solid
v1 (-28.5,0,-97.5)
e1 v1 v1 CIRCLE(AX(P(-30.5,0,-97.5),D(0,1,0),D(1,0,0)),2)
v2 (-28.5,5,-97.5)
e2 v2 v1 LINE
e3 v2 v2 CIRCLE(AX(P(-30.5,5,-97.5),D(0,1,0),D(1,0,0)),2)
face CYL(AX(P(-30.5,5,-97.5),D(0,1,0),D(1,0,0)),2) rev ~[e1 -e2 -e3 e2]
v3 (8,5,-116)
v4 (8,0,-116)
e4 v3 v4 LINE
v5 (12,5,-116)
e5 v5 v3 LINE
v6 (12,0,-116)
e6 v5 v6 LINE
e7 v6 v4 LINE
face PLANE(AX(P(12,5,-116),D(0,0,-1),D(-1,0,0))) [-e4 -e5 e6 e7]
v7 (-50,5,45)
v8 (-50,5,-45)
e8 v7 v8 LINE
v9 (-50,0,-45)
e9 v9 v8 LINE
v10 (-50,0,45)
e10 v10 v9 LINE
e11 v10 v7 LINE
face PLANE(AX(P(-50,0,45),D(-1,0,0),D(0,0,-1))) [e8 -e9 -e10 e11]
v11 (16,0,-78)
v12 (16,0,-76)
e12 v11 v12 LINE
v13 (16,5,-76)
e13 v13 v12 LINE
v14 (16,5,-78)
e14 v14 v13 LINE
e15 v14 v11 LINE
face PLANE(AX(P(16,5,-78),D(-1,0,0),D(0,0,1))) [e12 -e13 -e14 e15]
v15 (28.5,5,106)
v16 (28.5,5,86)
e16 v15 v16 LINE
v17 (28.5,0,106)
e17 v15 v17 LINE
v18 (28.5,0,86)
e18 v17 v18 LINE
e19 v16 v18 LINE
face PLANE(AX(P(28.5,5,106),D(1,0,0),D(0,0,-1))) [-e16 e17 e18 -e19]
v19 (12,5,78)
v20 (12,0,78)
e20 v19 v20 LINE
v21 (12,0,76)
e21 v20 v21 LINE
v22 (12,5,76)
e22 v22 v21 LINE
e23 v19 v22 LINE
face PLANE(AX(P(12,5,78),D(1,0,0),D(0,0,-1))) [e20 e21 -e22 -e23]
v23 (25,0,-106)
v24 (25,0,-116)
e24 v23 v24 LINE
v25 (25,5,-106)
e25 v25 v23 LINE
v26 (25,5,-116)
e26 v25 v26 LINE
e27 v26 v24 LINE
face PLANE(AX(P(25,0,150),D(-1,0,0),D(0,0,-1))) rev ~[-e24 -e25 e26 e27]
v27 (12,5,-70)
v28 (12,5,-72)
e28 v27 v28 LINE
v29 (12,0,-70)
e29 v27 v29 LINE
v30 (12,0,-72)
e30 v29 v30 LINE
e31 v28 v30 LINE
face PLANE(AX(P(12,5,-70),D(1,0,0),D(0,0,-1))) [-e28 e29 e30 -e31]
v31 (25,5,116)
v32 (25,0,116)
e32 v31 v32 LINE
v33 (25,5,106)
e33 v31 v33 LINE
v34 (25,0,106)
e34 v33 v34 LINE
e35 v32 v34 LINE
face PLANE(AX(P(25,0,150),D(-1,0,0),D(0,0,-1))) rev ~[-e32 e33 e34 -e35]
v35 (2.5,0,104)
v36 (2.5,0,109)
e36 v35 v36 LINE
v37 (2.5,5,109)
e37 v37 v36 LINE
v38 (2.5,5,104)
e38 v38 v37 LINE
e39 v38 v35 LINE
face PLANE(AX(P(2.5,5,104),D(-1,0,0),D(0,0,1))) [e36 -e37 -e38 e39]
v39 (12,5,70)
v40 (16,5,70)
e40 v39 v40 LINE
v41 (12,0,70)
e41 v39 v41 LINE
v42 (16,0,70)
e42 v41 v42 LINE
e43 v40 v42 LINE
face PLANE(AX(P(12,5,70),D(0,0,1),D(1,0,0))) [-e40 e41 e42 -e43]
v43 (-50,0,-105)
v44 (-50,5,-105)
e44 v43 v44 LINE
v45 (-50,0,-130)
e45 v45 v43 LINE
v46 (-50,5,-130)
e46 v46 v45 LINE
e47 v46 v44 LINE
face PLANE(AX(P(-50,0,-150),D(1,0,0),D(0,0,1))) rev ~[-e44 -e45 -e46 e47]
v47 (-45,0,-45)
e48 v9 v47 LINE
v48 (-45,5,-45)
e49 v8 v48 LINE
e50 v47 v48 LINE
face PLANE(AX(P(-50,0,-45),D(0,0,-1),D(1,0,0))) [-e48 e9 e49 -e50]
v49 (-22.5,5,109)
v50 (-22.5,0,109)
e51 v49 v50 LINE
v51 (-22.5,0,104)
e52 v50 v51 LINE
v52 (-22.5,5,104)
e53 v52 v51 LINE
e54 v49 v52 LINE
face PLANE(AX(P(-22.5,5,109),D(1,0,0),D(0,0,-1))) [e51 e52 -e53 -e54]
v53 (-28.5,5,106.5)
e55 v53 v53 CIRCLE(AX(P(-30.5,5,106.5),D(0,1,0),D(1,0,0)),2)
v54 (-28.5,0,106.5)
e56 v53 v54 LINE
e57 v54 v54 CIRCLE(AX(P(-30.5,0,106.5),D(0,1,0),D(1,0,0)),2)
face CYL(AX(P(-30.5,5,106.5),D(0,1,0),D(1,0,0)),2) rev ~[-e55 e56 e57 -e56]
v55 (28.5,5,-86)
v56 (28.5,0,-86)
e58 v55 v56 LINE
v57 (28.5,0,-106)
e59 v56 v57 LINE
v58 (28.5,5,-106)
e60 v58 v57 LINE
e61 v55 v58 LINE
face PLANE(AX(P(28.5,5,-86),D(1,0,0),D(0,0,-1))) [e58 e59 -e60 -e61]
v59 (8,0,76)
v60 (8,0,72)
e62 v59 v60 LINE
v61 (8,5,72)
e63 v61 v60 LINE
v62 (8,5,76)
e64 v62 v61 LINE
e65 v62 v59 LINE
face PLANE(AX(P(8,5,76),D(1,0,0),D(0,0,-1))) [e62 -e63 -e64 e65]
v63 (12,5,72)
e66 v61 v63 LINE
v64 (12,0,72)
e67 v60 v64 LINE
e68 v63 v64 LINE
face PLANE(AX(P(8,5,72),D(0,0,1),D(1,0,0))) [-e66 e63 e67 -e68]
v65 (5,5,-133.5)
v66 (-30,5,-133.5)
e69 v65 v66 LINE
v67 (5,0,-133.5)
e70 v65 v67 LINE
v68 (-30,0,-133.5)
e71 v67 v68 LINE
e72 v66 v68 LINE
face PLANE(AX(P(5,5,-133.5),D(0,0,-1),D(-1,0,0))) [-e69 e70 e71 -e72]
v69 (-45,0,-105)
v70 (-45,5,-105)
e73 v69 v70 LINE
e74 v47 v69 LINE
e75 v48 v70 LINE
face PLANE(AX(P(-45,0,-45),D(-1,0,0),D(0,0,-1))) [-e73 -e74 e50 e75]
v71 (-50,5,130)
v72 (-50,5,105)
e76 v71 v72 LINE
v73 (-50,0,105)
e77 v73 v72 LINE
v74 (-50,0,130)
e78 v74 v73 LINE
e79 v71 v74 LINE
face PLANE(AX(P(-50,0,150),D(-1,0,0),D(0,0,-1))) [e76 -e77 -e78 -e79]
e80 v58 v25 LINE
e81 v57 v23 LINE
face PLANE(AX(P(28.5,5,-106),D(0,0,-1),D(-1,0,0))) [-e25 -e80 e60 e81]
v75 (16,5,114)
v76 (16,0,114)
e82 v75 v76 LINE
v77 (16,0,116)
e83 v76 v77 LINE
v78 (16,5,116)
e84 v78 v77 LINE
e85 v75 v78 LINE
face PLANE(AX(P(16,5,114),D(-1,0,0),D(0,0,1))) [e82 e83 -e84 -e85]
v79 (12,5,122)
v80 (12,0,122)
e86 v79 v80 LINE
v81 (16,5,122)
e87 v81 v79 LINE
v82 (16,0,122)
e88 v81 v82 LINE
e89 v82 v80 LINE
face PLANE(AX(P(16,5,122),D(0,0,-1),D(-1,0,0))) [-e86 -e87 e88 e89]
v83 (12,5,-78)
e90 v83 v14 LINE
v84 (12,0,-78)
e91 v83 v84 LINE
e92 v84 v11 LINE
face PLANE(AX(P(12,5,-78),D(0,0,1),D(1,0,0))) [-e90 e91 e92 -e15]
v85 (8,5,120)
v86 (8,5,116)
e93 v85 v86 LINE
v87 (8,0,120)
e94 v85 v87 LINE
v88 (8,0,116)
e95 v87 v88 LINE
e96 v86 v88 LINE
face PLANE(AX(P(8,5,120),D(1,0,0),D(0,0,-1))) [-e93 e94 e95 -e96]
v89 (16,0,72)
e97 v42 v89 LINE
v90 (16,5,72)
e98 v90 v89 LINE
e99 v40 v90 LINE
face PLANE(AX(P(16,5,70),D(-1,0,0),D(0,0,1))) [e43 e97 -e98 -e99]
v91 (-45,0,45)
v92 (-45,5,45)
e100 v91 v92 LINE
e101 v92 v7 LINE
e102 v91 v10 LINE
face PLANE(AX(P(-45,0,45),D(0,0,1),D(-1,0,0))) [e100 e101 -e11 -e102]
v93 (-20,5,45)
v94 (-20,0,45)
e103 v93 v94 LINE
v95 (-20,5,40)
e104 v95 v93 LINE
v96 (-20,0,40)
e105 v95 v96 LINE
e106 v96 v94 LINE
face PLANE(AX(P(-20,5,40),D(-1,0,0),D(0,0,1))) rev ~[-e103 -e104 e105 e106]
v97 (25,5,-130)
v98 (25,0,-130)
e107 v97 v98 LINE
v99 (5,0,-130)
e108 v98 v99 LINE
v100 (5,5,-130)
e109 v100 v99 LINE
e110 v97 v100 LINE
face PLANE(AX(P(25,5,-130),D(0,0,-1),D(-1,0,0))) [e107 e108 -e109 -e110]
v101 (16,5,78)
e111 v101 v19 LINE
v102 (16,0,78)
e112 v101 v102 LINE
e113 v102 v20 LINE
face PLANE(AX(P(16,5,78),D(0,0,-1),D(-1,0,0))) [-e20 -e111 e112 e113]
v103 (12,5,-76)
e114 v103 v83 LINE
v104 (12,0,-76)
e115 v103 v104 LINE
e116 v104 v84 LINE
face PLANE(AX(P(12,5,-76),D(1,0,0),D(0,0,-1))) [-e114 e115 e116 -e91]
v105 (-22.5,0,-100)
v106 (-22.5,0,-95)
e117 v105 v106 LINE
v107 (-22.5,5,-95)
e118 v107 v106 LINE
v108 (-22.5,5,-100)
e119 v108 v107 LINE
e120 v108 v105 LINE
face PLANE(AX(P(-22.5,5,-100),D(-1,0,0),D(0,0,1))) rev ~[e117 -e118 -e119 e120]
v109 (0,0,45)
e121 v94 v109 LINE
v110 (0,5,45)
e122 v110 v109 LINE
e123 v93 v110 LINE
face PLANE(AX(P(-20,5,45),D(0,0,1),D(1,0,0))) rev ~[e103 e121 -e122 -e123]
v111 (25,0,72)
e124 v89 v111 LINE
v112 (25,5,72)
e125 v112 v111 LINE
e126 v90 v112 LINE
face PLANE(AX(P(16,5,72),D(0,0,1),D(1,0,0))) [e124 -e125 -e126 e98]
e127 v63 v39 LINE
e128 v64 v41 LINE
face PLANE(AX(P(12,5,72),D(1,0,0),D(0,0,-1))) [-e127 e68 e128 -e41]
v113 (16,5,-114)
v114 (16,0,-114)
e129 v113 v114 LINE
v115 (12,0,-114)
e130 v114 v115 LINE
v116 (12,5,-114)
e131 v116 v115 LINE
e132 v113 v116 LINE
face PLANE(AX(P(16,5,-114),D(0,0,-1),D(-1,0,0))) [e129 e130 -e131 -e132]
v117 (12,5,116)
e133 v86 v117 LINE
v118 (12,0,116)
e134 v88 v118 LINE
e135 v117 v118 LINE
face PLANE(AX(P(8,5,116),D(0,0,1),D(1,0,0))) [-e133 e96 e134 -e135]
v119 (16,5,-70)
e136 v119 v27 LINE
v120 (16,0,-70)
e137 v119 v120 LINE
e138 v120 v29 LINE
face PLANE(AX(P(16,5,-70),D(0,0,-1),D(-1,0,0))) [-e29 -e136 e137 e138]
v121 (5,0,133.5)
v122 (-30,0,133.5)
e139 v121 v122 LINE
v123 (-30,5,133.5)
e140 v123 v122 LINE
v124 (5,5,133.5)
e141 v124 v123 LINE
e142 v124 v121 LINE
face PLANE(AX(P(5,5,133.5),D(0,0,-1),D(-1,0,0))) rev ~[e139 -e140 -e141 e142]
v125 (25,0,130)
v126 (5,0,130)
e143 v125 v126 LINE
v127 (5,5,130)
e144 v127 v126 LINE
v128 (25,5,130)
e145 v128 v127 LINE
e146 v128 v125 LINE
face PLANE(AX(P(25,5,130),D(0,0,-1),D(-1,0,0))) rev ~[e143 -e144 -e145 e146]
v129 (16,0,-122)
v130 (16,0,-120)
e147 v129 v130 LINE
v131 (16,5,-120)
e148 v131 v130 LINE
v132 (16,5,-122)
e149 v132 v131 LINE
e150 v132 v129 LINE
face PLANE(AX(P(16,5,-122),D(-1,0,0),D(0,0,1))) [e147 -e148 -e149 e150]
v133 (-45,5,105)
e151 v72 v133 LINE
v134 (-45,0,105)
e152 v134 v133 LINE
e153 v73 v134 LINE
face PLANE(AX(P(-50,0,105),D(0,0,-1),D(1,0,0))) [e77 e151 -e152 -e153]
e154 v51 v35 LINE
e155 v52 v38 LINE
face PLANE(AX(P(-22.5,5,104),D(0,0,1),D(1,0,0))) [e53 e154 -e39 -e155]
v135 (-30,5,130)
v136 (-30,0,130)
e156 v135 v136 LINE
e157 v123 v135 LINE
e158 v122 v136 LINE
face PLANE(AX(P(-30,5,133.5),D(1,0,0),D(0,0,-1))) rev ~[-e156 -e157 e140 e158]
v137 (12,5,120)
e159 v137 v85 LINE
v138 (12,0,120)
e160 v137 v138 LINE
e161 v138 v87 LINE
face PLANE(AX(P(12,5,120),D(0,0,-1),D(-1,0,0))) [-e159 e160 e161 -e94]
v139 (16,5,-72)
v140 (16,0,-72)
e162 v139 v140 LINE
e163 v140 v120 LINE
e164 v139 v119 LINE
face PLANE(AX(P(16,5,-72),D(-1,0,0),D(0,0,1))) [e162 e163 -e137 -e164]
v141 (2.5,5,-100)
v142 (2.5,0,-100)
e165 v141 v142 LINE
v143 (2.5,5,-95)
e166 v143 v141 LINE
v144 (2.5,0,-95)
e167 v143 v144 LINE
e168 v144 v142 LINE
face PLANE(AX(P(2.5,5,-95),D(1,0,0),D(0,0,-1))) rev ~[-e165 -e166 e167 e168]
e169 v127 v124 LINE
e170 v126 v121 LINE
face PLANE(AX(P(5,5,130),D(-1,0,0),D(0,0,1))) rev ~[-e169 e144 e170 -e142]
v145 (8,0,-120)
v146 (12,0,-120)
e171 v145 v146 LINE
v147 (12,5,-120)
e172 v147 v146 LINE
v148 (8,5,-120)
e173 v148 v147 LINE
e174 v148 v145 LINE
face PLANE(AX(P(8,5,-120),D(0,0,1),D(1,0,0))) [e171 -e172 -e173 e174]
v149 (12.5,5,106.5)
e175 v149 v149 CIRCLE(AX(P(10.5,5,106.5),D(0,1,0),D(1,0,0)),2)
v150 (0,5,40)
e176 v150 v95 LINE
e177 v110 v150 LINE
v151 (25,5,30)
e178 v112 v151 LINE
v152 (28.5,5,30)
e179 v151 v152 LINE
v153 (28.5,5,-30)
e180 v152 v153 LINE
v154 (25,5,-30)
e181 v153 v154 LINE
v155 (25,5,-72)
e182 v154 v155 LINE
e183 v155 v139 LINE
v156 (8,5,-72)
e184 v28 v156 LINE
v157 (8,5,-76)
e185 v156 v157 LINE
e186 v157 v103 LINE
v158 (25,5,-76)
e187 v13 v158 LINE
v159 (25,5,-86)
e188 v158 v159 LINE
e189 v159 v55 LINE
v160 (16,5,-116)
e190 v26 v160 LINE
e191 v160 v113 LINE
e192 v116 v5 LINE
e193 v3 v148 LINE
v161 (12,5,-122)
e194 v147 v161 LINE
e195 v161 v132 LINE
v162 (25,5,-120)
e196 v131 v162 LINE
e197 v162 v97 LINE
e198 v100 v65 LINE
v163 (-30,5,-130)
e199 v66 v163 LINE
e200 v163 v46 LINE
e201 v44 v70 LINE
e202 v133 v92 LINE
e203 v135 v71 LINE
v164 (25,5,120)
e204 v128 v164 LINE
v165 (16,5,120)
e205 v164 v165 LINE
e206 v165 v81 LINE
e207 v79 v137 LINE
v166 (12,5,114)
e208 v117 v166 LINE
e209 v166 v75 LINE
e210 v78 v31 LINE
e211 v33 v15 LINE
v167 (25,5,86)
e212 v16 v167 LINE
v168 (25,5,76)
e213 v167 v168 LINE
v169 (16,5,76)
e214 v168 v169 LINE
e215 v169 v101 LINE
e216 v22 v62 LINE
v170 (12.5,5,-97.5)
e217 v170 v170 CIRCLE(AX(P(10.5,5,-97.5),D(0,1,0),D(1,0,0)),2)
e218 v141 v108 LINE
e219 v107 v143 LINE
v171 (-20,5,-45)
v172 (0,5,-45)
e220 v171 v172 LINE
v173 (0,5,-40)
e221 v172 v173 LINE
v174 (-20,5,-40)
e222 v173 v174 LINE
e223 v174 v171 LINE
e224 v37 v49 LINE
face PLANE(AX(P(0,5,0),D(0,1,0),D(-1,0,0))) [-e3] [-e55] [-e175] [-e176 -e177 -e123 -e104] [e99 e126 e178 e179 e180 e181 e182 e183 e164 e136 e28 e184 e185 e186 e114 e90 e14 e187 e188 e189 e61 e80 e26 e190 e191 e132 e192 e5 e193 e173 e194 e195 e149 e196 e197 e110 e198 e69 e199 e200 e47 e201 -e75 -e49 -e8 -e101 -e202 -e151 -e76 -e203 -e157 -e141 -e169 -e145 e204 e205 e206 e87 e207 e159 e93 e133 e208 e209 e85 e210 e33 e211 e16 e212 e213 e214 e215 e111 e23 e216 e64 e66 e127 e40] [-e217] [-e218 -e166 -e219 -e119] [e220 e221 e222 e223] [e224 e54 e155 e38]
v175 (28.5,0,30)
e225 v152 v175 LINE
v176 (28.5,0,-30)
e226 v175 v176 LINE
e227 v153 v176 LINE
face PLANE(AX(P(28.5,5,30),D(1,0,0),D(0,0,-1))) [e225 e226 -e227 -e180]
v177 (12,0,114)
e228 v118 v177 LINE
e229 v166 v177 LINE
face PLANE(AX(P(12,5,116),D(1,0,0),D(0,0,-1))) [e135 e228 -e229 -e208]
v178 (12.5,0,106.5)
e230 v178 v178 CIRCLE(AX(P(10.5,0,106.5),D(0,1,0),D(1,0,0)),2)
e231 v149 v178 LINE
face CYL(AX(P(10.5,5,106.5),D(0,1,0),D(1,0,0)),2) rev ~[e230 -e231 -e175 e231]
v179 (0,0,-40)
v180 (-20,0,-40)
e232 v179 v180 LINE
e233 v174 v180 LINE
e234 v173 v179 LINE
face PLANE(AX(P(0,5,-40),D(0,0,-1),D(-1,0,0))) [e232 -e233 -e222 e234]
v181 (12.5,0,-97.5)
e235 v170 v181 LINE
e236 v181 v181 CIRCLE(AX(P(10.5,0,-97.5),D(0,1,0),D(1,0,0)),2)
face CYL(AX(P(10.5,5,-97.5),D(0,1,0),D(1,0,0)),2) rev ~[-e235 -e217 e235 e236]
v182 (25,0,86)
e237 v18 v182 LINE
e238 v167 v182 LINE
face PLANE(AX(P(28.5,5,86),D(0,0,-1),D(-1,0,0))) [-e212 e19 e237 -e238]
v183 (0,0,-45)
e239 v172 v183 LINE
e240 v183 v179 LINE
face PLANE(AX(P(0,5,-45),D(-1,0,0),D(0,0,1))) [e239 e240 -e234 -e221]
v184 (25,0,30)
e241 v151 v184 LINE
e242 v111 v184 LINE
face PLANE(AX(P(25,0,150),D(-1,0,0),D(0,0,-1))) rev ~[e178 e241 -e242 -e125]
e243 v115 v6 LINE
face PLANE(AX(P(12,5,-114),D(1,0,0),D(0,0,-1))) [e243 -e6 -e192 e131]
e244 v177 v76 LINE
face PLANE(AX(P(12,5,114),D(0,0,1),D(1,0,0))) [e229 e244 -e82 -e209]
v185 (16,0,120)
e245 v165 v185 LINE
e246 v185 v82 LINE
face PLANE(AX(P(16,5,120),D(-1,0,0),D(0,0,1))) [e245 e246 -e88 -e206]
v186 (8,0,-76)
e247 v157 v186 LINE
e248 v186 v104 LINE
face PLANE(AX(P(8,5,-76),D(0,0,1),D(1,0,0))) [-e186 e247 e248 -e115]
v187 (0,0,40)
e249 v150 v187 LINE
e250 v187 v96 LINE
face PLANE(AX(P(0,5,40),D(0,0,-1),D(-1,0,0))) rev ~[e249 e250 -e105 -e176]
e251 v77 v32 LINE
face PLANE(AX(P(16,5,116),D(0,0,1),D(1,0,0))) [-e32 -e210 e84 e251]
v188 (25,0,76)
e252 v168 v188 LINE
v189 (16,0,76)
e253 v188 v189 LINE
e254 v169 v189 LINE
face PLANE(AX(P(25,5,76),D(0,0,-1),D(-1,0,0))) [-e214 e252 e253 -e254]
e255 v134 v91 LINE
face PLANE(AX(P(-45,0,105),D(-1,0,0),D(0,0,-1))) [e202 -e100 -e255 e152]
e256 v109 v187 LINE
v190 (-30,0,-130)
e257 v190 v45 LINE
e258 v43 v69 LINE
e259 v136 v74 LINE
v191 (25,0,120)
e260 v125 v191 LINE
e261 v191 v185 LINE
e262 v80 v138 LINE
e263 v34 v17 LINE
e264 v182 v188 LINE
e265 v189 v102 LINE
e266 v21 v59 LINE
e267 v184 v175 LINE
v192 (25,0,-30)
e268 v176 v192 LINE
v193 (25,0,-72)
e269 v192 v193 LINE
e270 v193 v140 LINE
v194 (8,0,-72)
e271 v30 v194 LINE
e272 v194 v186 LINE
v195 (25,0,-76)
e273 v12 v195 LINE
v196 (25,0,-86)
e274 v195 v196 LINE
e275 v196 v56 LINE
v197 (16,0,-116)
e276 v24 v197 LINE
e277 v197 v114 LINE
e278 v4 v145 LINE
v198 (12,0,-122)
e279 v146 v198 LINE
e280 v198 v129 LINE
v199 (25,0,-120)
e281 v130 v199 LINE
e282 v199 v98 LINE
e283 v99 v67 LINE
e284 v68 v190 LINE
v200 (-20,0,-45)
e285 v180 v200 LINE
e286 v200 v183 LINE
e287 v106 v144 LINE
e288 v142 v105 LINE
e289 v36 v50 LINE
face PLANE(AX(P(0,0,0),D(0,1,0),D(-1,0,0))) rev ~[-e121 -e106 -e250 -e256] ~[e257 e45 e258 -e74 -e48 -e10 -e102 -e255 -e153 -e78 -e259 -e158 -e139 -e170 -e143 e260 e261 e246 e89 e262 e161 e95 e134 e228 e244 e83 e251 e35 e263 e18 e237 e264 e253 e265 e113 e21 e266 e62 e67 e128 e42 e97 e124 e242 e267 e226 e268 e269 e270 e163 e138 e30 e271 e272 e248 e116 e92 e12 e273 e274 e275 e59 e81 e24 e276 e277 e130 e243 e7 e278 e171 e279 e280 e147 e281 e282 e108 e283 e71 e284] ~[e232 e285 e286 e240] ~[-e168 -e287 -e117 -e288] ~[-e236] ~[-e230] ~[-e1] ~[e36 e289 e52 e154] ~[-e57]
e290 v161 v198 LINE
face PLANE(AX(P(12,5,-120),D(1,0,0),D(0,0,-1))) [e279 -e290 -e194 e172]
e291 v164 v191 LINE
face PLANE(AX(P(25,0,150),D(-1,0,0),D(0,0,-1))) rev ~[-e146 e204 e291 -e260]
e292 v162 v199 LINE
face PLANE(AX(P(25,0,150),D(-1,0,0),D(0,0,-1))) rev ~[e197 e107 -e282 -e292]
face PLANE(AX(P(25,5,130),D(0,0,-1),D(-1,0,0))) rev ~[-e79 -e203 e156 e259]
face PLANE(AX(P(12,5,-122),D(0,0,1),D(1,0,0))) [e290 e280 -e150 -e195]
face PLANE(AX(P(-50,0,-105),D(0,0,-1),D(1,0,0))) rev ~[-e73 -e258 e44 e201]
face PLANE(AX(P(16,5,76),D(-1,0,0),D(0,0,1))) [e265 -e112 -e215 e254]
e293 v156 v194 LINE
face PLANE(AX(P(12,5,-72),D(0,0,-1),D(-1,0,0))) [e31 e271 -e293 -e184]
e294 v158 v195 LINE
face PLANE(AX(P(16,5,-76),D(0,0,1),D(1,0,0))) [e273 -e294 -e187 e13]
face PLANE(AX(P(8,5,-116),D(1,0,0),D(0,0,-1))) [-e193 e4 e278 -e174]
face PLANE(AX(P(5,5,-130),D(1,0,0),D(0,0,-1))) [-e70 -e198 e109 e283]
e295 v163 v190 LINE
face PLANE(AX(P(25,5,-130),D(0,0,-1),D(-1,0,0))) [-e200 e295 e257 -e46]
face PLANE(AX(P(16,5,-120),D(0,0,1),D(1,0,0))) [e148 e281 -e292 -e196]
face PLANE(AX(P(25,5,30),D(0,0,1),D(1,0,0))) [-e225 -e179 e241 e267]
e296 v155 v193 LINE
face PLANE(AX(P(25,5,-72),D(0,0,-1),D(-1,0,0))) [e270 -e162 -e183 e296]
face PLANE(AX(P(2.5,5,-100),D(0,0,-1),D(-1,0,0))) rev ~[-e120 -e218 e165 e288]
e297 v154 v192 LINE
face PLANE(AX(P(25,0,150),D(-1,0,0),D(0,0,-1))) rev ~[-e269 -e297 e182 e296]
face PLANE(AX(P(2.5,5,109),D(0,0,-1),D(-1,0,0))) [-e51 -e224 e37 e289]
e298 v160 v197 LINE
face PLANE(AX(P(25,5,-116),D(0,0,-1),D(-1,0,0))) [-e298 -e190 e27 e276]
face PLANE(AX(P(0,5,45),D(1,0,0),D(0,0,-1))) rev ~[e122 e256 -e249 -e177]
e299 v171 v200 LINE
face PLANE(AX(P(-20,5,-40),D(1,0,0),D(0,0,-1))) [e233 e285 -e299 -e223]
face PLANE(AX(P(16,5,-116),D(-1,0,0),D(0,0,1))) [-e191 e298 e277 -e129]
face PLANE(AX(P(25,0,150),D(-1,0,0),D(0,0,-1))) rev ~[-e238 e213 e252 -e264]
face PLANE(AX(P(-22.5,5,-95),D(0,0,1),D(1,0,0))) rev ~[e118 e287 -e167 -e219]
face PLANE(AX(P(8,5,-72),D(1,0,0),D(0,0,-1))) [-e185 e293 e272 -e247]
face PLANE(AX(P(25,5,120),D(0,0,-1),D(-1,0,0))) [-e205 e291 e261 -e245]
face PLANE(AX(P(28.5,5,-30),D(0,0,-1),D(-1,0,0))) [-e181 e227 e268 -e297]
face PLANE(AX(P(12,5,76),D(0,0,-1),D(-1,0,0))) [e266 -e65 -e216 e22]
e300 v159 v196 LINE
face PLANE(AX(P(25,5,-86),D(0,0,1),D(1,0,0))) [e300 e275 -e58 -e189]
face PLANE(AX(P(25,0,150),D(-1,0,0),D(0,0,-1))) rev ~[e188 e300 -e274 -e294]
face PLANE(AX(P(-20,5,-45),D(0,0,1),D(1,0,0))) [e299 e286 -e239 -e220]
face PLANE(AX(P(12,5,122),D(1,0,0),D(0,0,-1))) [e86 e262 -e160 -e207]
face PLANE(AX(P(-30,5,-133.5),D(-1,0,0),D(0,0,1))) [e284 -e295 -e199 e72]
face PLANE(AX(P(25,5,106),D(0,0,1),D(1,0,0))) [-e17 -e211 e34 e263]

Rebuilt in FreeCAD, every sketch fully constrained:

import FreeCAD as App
import Part
import Sketcher
Q = App.Units.Quantity


def add_polygon(sketch, points):
    """Adds a closed chain of lines whose ends are joined by coincident constraints."""
    first, n = sketch.GeometryCount, len(points)
    for a, b in zip(points, points[1:] + points[:1]):
        sketch.addGeometry(Part.LineSegment(App.Vector(*a, 0), App.Vector(*b, 0)), False)
    for i in range(n):
        sketch.addConstraint(Sketcher.Constraint("Coincident", first + i, 2, first + (i + 1) % n, 1))

doc = App.newDocument("Part")
body = doc.addObject("PartDesign::Body", "Body")

sketch1 = body.newObject("Sketcher::SketchObject", "Sketch")
sketch1.AttachmentSupport = (doc.getObject("XZ_Plane"), [""])
sketch1.MapMode = "FlatFace"
add_polygon(sketch1, [(25, 150), (25, -150), (-50, -150), (-50, -105), (-45, -105), (-45, -45), (-50, -45), (-50, 45), (-45, 45), (-45, 105), (-50, 105), (-50, 150)])
sketch1.addConstraint([
    Sketcher.Constraint("Vertical", 0),
    Sketcher.Constraint("Horizontal", 1),
    Sketcher.Constraint("Vertical", 2),
    Sketcher.Constraint("Horizontal", 3),
    Sketcher.Constraint("Vertical", 4),
    Sketcher.Constraint("Horizontal", 5),
    Sketcher.Constraint("Vertical", 6),
    Sketcher.Constraint("Horizontal", 7),
    Sketcher.Constraint("Vertical", 8),
    Sketcher.Constraint("Horizontal", 9),
    Sketcher.Constraint("Vertical", 10),
    Sketcher.Constraint("Horizontal", 11),
    Sketcher.Constraint("Symmetric", 4, 2, 7, 2, -1),
    Sketcher.Constraint("Symmetric", 2, 2, 9, 2, -1),
    Sketcher.Constraint("Vertical", 2, 2, 5, 2),
    Sketcher.Constraint("Equal", 2, 10),
    Sketcher.Constraint("DistanceX", 1, 2, 1, 1, Q("75 mm")),
    Sketcher.Constraint("DistanceX", 3, 1, 3, 2, Q("5 mm")),
    Sketcher.Constraint("DistanceY", 0, 2, 0, 1, Q("300 mm")),
    Sketcher.Constraint("DistanceY", 2, 1, 2, 2, Q("45 mm")),
    Sketcher.Constraint("DistanceY", 4, 1, 4, 2, Q("60 mm")),
    Sketcher.Constraint("DistanceX", 3, 2, -1, 1, Q("45 mm")),
])
pad1 = body.newObject("PartDesign::Pad", "Pad")
pad1.Profile = sketch1
pad1.Length = 5
pad1.Reversed = True

sketch2 = body.newObject("Sketcher::SketchObject", "Sketch001")
sketch2.AttachmentSupport = (doc.getObject("XZ_Plane"), [""])
sketch2.MapMode = "FlatFace"
sketch2.AttachmentOffset = App.Placement(App.Vector(0, 0, -5), App.Rotation())
add_polygon(sketch2, [(-50, 130), (-50, 150), (25, 150), (25, 130)])
add_polygon(sketch2, [(-50, -130), (25, -130), (25, -150), (-50, -150)])
sketch2.addConstraint([
    Sketcher.Constraint("Vertical", 0),
    Sketcher.Constraint("Horizontal", 1),
    Sketcher.Constraint("Vertical", 2),
    Sketcher.Constraint("Horizontal", 3),
    Sketcher.Constraint("Horizontal", 4),
    Sketcher.Constraint("Vertical", 5),
    Sketcher.Constraint("Horizontal", 6),
    Sketcher.Constraint("Vertical", 7),
    Sketcher.Constraint("Symmetric", 2, 2, 4, 2, -1),
    Sketcher.Constraint("Symmetric", 0, 2, 6, 2, -1),
    Sketcher.Constraint("DistanceY", 0, 1, 0, 2, Q("20 mm")),
    Sketcher.Constraint("DistanceX", 1, 1, 1, 2, Q("75 mm")),
    Sketcher.Constraint("DistanceX", 0, 2, -1, 1, Q("50 mm")),
    Sketcher.Constraint("DistanceY", -1, 1, 0, 2, Q("150 mm")),
])
pocket1 = body.newObject("PartDesign::Pocket", "Pocket")
pocket1.Profile = sketch2
pocket1.Length = 5
pocket1.Reversed = True

sketch3 = body.newObject("Sketcher::SketchObject", "Sketch002")
sketch3.AttachmentSupport = (doc.getObject("XZ_Plane"), [""])
sketch3.MapMode = "FlatFace"
sketch3.AttachmentOffset = App.Placement(App.Vector(0, 0, -5), App.Rotation())
add_polygon(sketch3, [(2, -95), (2, -100), (-22, -100), (-22, -95)])
add_polygon(sketch3, [(-22, 109), (2, 109), (2, 104), (-22, 104)])
sketch3.addConstraint([
    Sketcher.Constraint("Vertical", 0),
    Sketcher.Constraint("Horizontal", 1),
    Sketcher.Constraint("Vertical", 2),
    Sketcher.Constraint("Horizontal", 3),
    Sketcher.Constraint("Horizontal", 4),
    Sketcher.Constraint("Vertical", 5),
    Sketcher.Constraint("Horizontal", 6),
    Sketcher.Constraint("Vertical", 7),
    Sketcher.Constraint("Vertical", 3, 2, 4, 2),
    Sketcher.Constraint("Vertical", 2, 2, 6, 2),
    Sketcher.Constraint("Equal", 2, 5),
    Sketcher.Constraint("DistanceX", 1, 2, 1, 1, Q("25 mm")),
    Sketcher.Constraint("DistanceY", 0, 2, 0, 1, Q("5 mm")),
    Sketcher.Constraint("DistanceX", 1, 2, -1, 1, Q("22.5 mm")),
    Sketcher.Constraint("DistanceY", 0, 2, -1, 1, Q("100 mm")),
    Sketcher.Constraint("DistanceY", -1, 1, 4, 2, Q("109 mm")),
])
pocket2 = body.newObject("PartDesign::Pocket", "Pocket001")
pocket2.Profile = sketch3
pocket2.Length = 5
pocket2.Reversed = True

sketch4 = body.newObject("Sketcher::SketchObject", "Sketch003")
sketch4.AttachmentSupport = (doc.getObject("XZ_Plane"), [""])
sketch4.MapMode = "FlatFace"
sketch4.AttachmentOffset = App.Placement(App.Vector(0, 0, -5), App.Rotation())
sketch4.addGeometry([
    Part.Circle(App.Vector(-30.5, 106.5, 0), App.Vector(0, 0, 1), 2),
    Part.Circle(App.Vector(10.5, 106.5, 0), App.Vector(0, 0, 1), 2),
    Part.Circle(App.Vector(-30.5, -97.5, 0), App.Vector(0, 0, 1), 2),
    Part.Circle(App.Vector(10.5, -97.5, 0), App.Vector(0, 0, 1), 2),
], False)
sketch4.addConstraint([
    Sketcher.Constraint("Equal", 0, 1),
    Sketcher.Constraint("Equal", 1, 2),
    Sketcher.Constraint("Equal", 2, 3),
    Sketcher.Constraint("Horizontal", 0, 3, 1, 3),
    Sketcher.Constraint("Horizontal", 2, 3, 3, 3),
    Sketcher.Constraint("Vertical", 0, 3, 2, 3),
    Sketcher.Constraint("Vertical", 1, 3, 3, 3),
    Sketcher.Constraint("Diameter", 0, Q("4 mm")),
    Sketcher.Constraint("DistanceX", 0, 3, 1, 3, Q("41 mm")),
    Sketcher.Constraint("DistanceY", 2, 3, 0, 3, Q("204 mm")),
    Sketcher.Constraint("DistanceX", 0, 3, -1, 1, Q("30.5 mm")),
    Sketcher.Constraint("DistanceY", -1, 1, 0, 3, Q("106.5 mm")),
])
pocket3 = body.newObject("PartDesign::Pocket", "Pocket002")
pocket3.Profile = sketch4
pocket3.Length = 5
pocket3.Reversed = True

sketch5 = body.newObject("Sketcher::SketchObject", "Sketch004")
sketch5.AttachmentSupport = (doc.getObject("XZ_Plane"), [""])
sketch5.MapMode = "FlatFace"
sketch5.AttachmentOffset = App.Placement(App.Vector(0, 0, -5), App.Rotation())
add_polygon(sketch5, [(-20, 40), (-20, 45), (0, 45), (0, 40)])
add_polygon(sketch5, [(0, -45), (-20, -45), (-20, -40), (0, -40)])
sketch5.addConstraint([
    Sketcher.Constraint("Vertical", 0),
    Sketcher.Constraint("Horizontal", 1),
    Sketcher.Constraint("Vertical", 2),
    Sketcher.Constraint("Horizontal", 3),
    Sketcher.Constraint("Horizontal", 4),
    Sketcher.Constraint("Vertical", 5),
    Sketcher.Constraint("Horizontal", 6),
    Sketcher.Constraint("Vertical", 7),
    Sketcher.Constraint("Symmetric", 2, 2, 6, 2, -1, 1),
    Sketcher.Constraint("Symmetric", 0, 2, 4, 2, -1),
    Sketcher.Constraint("PointOnObject", 1, 2, -2),
    Sketcher.Constraint("DistanceX", 1, 1, 1, 2, Q("20 mm")),
    Sketcher.Constraint("DistanceY", 0, 1, 0, 2, Q("5 mm")),
    Sketcher.Constraint("DistanceY", -1, 1, 0, 2, Q("45 mm")),
])
pocket4 = body.newObject("PartDesign::Pocket", "Pocket003")
pocket4.Profile = sketch5
pocket4.Length = 10
pocket4.Reversed = True

sketch6 = body.newObject("Sketcher::SketchObject", "Sketch005")
sketch6.AttachmentSupport = (doc.getObject("XZ_Plane"), [""])
sketch6.MapMode = "FlatFace"
sketch6.AttachmentOffset = App.Placement(App.Vector(0, 0, -5), App.Rotation())
add_polygon(sketch6, [(25, -106), (25, -86), (28.5, -86), (28.5, -106)])
add_polygon(sketch6, [(25, -30), (25, 30), (28.5, 30), (28.5, -30)])
add_polygon(sketch6, [(25, 86), (25, 106), (28.5, 106), (28.5, 86)])
sketch6.addConstraint([
    Sketcher.Constraint("Vertical", 0),
    Sketcher.Constraint("Horizontal", 1),
    Sketcher.Constraint("Vertical", 2),
    Sketcher.Constraint("Horizontal", 3),
    Sketcher.Constraint("Vertical", 4),
    Sketcher.Constraint("Horizontal", 5),
    Sketcher.Constraint("Vertical", 6),
    Sketcher.Constraint("Horizontal", 7),
    Sketcher.Constraint("Vertical", 8),
    Sketcher.Constraint("Horizontal", 9),
    Sketcher.Constraint("Vertical", 10),
    Sketcher.Constraint("Horizontal", 11),
    Sketcher.Constraint("Symmetric", 3, 2, 8, 2, -1),
    Sketcher.Constraint("Symmetric", 1, 2, 10, 2, -1),
    Sketcher.Constraint("Vertical", 3, 2, 4, 2),
    Sketcher.Constraint("Vertical", 2, 2, 5, 2),
    Sketcher.Constraint("DistanceY", 0, 1, 0, 2, Q("20 mm")),
    Sketcher.Constraint("DistanceY", 4, 1, 4, 2, Q("60 mm")),
    Sketcher.Constraint("DistanceX", 1, 1, 1, 2, Q("3.5 mm")),
    Sketcher.Constraint("DistanceY", -1, 1, 4, 2, Q("30 mm")),
    Sketcher.Constraint("DistanceX", -1, 1, 0, 2, Q("25 mm")),
    Sketcher.Constraint("DistanceY", 0, 2, -1, 1, Q("86 mm")),
])
pad2 = body.newObject("PartDesign::Pad", "Pad001")
pad2.Profile = sketch6
pad2.Length = 5

sketch7 = body.newObject("Sketcher::SketchObject", "Sketch006")
sketch7.AttachmentSupport = (doc.getObject("XZ_Plane"), [""])
sketch7.MapMode = "FlatFace"
sketch7.AttachmentOffset = App.Placement(App.Vector(0, 0, -5), App.Rotation())
add_polygon(sketch7, [(16, 120), (25, 120), (25, 116), (16, 116), (16, 114), (12, 114), (12, 116), (8, 116), (8, 120), (12, 120), (12, 122), (16, 122)])
add_polygon(sketch7, [(16, 76), (25, 76), (25, 72), (16, 72), (16, 70), (12, 70), (12, 72), (8, 72), (8, 76), (12, 76), (12, 78), (16, 78)])
add_polygon(sketch7, [(16, -72), (25, -72), (25, -76), (16, -76), (16, -78), (12, -78), (12, -76), (8, -76), (8, -72), (12, -72), (12, -70), (16, -70)])
add_polygon(sketch7, [(16, -116), (25, -116), (25, -120), (16, -120), (16, -122), (12, -122), (12, -120), (8, -120), (8, -116), (12, -116), (12, -114), (16, -114)])
sketch7.addConstraint([
    Sketcher.Constraint("Horizontal", 0),
    Sketcher.Constraint("Vertical", 1),
    Sketcher.Constraint("Horizontal", 2),
    Sketcher.Constraint("Vertical", 3),
    Sketcher.Constraint("Horizontal", 4),
    Sketcher.Constraint("Vertical", 5),
    Sketcher.Constraint("Horizontal", 6),
    Sketcher.Constraint("Vertical", 7),
    Sketcher.Constraint("Horizontal", 8),
    Sketcher.Constraint("Vertical", 9),
    Sketcher.Constraint("Horizontal", 10),
    Sketcher.Constraint("Vertical", 11),
    Sketcher.Constraint("Horizontal", 12),
    Sketcher.Constraint("Vertical", 13),
    Sketcher.Constraint("Horizontal", 14),
    Sketcher.Constraint("Vertical", 15),
    Sketcher.Constraint("Horizontal", 16),
    Sketcher.Constraint("Vertical", 17),
    Sketcher.Constraint("Horizontal", 18),
    Sketcher.Constraint("Vertical", 19),
    Sketcher.Constraint("Horizontal", 20),
    Sketcher.Constraint("Vertical", 21),
    Sketcher.Constraint("Horizontal", 22),
    Sketcher.Constraint("Vertical", 23),
    Sketcher.Constraint("Horizontal", 24),
    Sketcher.Constraint("Vertical", 25),
    Sketcher.Constraint("Horizontal", 26),
    Sketcher.Constraint("Vertical", 27),
    Sketcher.Constraint("Horizontal", 28),
    Sketcher.Constraint("Vertical", 29),
    Sketcher.Constraint("Horizontal", 30),
    Sketcher.Constraint("Vertical", 31),
    Sketcher.Constraint("Horizontal", 32),
    Sketcher.Constraint("Vertical", 33),
    Sketcher.Constraint("Horizontal", 34),
    Sketcher.Constraint("Vertical", 35),
    Sketcher.Constraint("Horizontal", 36),
    Sketcher.Constraint("Vertical", 37),
    Sketcher.Constraint("Horizontal", 38),
    Sketcher.Constraint("Vertical", 39),
    Sketcher.Constraint("Horizontal", 40),
    Sketcher.Constraint("Vertical", 41),
    Sketcher.Constraint("Horizontal", 42),
    Sketcher.Constraint("Vertical", 43),
    Sketcher.Constraint("Horizontal", 44),
    Sketcher.Constraint("Vertical", 45),
    Sketcher.Constraint("Horizontal", 46),
    Sketcher.Constraint("Vertical", 47),
    Sketcher.Constraint("Symmetric", 13, 2, 24, 2, -1),
    Sketcher.Constraint("Symmetric", 23, 2, 26, 2, -1),
    Sketcher.Constraint("Symmetric", 21, 2, 28, 2, -1),
    Sketcher.Constraint("Symmetric", 19, 2, 30, 2, -1),
    Sketcher.Constraint("Symmetric", 17, 2, 32, 2, -1),
    Sketcher.Constraint("Symmetric", 15, 2, 34, 2, -1),
    Sketcher.Constraint("Symmetric", 1, 2, 36, 2, -1),
    Sketcher.Constraint("Symmetric", 11, 2, 38, 2, -1),
    Sketcher.Constraint("Symmetric", 9, 2, 40, 2, -1),
    Sketcher.Constraint("Symmetric", 7, 2, 42, 2, -1),
    Sketcher.Constraint("Symmetric", 5, 2, 44, 2, -1),
    Sketcher.Constraint("Symmetric", 3, 2, 46, 2, -1),
    Sketcher.Constraint("Horizontal", 2, 2, 5, 2),
    Sketcher.Constraint("Horizontal", 0, 2, 7, 2),
    Sketcher.Constraint("Horizontal", 14, 2, 17, 2),
    Sketcher.Constraint("Horizontal", 12, 2, 19, 2),
    Sketcher.Constraint("Vertical", 5, 2, 8, 2),
    Sketcher.Constraint("Vertical", 3, 2, 10, 2),
    Sketcher.Constraint("Vertical", 1, 2, 12, 2),
    Sketcher.Constraint("Vertical", 11, 2, 14, 2),
    Sketcher.Constraint("Vertical", 9, 2, 16, 2),
    Sketcher.Constraint("Vertical", 7, 2, 18, 2),
    Sketcher.Constraint("Vertical", 17, 2, 20, 2),
    Sketcher.Constraint("Vertical", 15, 2, 22, 2),
    Sketcher.Constraint("Equal", 4, 6),
    Sketcher.Constraint("Equal", 46, 1),
    Sketcher.Constraint("Equal", 5, 9),
    Sketcher.Constraint("Equal", 7, 13),
    Sketcher.Constraint("Equal", 11, 15),
    Sketcher.Constraint("Equal", 17, 21),
    Sketcher.Constraint("DistanceX", 4, 2, 4, 1, Q("4 mm")),
    Sketcher.Constraint("DistanceX", -1, 1, 6, 2, Q("8 mm")),
    Sketcher.Constraint("DistanceX", 6, 2, 1, 2, Q("17 mm")),
    Sketcher.Constraint("DistanceY", 3, 2, 10, 2, Q("8 mm")),
    Sketcher.Constraint("DistanceY", -1, 1, 0, 2, Q("120 mm")),
    Sketcher.Constraint("DistanceY", -1, 1, 12, 2, Q("76 mm")),
])
pocket5 = body.newObject("PartDesign::Pocket", "Pocket004")
pocket5.Profile = sketch7
pocket5.Length = 10
pocket5.Reversed = True

sketch8 = body.newObject("Sketcher::SketchObject", "Sketch007")
sketch8.AttachmentSupport = (doc.getObject("XZ_Plane"), [""])
sketch8.MapMode = "FlatFace"
sketch8.AttachmentOffset = App.Placement(App.Vector(0, 0, -5), App.Rotation())
add_polygon(sketch8, [(5, 130), (-30, 130), (-30, 133.5), (5, 133.5)])
add_polygon(sketch8, [(-30, -133.5), (-30, -130), (5, -130), (5, -133.5)])
sketch8.addConstraint([
    Sketcher.Constraint("Horizontal", 0),
    Sketcher.Constraint("Vertical", 1),
    Sketcher.Constraint("Horizontal", 2),
    Sketcher.Constraint("Vertical", 3),
    Sketcher.Constraint("Vertical", 4),
    Sketcher.Constraint("Horizontal", 5),
    Sketcher.Constraint("Vertical", 6),
    Sketcher.Constraint("Horizontal", 7),
    Sketcher.Constraint("Symmetric", 0, 2, 4, 2, -1),
    Sketcher.Constraint("Symmetric", 2, 2, 6, 2, -1),
    Sketcher.Constraint("DistanceX", 0, 2, 0, 1, Q("35 mm")),
    Sketcher.Constraint("DistanceY", 1, 1, 1, 2, Q("3.5 mm")),
    Sketcher.Constraint("DistanceX", 0, 2, -1, 1, Q("30 mm")),
    Sketcher.Constraint("DistanceY", -1, 1, 0, 2, Q("130 mm")),
])
pad3 = body.newObject("PartDesign::Pad", "Pad002")
pad3.Profile = sketch8
pad3.Length = 5

doc.recompute()
